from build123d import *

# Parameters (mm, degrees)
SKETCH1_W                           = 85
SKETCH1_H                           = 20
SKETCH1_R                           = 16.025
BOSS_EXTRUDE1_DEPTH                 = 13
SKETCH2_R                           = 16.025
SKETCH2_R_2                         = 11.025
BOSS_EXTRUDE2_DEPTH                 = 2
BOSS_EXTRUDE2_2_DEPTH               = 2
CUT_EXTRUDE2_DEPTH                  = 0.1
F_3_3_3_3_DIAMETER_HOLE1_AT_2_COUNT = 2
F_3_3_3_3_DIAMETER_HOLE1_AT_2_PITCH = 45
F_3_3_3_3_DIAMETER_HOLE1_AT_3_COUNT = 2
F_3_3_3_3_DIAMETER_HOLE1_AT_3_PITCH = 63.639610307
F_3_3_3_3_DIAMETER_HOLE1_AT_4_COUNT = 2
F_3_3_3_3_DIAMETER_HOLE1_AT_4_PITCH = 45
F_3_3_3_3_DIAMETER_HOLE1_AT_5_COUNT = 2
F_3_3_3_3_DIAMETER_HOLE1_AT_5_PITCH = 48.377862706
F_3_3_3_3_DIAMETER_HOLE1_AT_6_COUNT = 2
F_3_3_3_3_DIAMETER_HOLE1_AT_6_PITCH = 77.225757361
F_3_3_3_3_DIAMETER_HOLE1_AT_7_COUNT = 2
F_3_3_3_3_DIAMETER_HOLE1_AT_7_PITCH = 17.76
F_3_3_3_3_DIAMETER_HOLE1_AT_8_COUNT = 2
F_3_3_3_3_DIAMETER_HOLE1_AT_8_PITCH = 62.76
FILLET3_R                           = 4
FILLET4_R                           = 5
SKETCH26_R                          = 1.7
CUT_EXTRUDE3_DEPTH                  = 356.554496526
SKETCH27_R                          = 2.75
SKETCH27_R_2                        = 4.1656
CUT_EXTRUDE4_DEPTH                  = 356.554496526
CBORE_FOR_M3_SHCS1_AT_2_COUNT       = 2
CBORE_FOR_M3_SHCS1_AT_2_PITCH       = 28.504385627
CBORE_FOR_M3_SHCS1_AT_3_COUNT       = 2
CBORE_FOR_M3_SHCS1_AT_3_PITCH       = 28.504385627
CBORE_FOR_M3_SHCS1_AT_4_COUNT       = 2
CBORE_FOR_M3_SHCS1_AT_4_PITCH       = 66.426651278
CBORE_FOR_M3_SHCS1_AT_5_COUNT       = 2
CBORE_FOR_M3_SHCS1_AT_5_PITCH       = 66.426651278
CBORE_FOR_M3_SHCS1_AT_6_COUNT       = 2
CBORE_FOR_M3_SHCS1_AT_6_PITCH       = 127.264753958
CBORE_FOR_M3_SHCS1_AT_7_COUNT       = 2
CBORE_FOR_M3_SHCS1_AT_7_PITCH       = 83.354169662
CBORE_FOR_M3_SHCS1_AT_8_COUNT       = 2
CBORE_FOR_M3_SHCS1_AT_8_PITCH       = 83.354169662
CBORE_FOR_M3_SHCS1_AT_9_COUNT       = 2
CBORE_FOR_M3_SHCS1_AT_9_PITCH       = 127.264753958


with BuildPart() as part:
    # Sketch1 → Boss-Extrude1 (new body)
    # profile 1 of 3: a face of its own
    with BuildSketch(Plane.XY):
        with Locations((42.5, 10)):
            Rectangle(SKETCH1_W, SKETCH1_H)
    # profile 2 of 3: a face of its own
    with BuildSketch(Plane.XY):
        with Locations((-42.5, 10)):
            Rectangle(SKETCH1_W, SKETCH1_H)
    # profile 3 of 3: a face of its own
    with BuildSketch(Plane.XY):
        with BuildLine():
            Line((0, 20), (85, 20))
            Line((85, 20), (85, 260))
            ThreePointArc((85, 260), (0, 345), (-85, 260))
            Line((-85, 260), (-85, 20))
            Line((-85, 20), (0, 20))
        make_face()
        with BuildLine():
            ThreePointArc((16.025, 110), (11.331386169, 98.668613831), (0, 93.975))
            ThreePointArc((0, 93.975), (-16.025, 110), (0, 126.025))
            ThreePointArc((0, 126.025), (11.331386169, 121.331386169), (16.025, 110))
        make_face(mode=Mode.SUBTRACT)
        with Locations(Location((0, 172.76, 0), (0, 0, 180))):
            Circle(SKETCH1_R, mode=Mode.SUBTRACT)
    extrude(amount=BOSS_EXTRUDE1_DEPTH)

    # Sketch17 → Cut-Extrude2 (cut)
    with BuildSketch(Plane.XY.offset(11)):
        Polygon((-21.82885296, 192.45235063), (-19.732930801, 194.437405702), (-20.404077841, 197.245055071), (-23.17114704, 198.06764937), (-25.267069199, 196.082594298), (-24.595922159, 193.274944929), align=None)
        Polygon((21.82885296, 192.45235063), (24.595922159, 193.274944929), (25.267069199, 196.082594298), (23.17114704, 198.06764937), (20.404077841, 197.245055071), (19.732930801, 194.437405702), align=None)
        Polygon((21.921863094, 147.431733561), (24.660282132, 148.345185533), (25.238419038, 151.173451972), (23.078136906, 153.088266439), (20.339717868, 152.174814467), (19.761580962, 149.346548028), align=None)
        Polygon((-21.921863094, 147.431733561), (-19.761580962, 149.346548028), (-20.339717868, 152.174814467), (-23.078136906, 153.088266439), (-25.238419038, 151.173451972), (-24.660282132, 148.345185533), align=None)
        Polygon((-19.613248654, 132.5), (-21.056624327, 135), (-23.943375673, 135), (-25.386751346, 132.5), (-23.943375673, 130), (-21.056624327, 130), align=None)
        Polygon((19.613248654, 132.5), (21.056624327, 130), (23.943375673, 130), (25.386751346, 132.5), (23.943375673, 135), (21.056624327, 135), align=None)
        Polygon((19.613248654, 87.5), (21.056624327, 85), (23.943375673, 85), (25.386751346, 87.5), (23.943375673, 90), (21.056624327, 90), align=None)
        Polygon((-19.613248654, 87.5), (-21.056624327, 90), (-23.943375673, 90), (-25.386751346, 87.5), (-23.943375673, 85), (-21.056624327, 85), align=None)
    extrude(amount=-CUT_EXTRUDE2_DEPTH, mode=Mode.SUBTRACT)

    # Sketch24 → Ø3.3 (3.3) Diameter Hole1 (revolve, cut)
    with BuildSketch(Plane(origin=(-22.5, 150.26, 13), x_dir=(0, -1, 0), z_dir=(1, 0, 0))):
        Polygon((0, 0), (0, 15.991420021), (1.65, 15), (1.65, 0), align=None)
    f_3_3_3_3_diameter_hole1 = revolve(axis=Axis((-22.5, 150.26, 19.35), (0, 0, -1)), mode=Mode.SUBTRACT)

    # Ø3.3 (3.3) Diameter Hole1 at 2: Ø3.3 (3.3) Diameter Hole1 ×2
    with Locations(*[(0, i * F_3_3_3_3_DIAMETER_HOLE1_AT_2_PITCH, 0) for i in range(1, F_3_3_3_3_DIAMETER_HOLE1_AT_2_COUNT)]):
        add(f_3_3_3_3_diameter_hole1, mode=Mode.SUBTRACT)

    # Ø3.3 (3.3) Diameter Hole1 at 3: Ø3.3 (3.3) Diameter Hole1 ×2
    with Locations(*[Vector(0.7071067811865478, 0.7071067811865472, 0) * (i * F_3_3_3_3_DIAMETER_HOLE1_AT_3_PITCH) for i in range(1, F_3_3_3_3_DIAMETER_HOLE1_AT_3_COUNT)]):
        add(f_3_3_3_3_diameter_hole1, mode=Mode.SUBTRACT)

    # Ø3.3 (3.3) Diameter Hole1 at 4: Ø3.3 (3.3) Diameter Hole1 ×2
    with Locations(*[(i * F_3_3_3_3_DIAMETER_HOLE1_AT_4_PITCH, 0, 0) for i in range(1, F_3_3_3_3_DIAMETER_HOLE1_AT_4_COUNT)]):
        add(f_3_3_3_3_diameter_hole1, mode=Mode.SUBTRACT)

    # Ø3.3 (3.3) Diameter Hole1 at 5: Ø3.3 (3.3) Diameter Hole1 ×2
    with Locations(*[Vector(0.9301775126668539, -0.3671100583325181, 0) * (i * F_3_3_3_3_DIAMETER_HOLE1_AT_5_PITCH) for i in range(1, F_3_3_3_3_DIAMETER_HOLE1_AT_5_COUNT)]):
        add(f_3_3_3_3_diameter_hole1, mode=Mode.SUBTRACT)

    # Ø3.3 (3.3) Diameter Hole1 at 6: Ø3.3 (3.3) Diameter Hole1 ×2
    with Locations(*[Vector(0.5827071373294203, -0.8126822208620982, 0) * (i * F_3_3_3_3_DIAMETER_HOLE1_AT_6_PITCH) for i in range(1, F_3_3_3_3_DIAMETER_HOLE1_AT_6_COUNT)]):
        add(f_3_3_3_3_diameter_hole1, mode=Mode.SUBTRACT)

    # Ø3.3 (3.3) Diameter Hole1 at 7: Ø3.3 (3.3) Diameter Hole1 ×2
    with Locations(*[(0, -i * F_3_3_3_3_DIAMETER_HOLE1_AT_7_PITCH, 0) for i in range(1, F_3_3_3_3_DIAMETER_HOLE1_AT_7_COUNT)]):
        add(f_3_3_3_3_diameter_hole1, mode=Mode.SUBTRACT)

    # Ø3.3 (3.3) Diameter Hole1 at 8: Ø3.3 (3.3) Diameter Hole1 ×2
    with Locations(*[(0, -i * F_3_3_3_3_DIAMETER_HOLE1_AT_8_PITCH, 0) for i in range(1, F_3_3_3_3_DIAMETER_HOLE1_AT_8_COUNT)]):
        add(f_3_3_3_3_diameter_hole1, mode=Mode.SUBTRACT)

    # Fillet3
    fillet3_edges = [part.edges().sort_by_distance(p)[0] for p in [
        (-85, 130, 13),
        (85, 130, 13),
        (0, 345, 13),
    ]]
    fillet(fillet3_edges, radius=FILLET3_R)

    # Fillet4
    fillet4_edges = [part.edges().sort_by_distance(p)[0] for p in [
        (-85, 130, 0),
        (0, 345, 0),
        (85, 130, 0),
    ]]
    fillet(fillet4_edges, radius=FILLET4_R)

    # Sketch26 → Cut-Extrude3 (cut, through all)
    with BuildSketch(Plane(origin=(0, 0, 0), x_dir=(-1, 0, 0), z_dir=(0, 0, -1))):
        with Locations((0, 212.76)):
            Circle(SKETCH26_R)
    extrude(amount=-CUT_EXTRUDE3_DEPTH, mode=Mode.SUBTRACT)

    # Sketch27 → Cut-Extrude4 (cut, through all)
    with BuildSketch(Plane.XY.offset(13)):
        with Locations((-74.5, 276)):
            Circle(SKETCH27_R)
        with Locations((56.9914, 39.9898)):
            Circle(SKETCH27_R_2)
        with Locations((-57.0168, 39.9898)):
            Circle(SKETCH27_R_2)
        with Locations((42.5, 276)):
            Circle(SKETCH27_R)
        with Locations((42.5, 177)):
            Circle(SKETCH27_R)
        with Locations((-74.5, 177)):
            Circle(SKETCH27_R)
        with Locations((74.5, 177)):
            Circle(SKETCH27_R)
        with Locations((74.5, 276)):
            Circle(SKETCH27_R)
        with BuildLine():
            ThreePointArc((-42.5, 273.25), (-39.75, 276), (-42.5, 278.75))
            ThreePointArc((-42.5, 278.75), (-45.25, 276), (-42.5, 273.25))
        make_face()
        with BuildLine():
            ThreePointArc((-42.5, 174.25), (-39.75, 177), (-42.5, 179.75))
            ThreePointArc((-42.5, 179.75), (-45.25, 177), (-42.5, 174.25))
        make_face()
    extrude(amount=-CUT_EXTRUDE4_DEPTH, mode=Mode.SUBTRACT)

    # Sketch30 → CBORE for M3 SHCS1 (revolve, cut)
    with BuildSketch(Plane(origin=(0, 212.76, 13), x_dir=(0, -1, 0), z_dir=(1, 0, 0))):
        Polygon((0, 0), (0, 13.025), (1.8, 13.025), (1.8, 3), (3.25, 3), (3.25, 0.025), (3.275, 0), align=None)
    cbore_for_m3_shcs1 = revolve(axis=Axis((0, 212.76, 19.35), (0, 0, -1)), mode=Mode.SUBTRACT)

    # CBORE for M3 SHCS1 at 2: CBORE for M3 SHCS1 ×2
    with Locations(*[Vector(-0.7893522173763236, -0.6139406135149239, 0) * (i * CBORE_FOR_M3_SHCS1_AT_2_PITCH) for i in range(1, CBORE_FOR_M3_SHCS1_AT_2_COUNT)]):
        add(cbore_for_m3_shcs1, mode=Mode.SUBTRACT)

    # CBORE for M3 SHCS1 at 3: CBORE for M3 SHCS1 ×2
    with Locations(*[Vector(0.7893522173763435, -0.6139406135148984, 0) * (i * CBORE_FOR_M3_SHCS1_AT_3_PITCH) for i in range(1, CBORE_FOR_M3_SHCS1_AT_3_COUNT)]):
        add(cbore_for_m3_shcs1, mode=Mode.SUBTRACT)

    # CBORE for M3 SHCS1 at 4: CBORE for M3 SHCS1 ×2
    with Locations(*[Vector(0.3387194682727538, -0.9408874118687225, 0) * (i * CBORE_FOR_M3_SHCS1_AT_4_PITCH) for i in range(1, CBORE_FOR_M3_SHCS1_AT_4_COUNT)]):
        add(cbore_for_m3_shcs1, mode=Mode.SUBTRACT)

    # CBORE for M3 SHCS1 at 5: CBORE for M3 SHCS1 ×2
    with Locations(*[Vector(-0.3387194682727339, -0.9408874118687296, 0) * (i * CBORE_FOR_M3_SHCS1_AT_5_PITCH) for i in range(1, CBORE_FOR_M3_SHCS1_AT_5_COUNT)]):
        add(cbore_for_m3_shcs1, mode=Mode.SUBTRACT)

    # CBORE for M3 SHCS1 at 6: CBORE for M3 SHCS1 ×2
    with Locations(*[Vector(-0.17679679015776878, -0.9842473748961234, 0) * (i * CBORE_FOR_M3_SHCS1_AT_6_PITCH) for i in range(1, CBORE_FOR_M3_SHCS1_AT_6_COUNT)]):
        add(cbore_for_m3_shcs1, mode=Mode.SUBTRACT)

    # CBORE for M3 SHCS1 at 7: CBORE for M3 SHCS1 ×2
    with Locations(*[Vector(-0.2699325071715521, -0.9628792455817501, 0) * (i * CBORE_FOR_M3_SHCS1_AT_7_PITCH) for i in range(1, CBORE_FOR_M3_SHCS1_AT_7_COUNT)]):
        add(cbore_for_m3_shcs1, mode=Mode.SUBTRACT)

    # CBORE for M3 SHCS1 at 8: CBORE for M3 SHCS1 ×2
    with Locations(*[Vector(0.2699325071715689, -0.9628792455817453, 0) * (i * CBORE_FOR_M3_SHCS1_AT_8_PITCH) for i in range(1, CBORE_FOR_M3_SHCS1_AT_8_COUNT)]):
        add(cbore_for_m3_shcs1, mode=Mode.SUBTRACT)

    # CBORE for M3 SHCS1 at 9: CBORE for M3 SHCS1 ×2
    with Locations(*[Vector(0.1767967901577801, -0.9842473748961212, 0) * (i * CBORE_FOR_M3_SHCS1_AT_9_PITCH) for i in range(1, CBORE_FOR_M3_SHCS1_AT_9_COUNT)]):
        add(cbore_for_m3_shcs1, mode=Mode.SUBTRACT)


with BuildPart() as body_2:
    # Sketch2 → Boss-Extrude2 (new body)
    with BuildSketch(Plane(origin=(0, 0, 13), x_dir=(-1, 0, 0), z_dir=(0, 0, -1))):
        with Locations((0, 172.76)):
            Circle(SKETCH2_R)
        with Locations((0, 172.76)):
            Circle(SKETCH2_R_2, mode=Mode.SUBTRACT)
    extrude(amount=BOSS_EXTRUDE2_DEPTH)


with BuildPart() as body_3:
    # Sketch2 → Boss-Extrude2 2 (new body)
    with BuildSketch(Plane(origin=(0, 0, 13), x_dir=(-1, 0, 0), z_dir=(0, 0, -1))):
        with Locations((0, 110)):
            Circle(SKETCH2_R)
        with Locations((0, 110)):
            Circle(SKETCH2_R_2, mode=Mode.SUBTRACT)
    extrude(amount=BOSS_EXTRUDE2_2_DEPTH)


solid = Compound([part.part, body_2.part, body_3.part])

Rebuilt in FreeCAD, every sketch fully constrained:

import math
import FreeCAD as App
import Part
import Sketcher

V = App.Vector
Q = App.Units.Quantity


def edges_at(feature, points):
    """Names of the edges that pass closest to the given points."""
    edges = feature.Shape.Edges
    near = lambda p: min(range(len(edges)), key=lambda i: edges[i].distToShape(Part.Vertex(*p))[0])
    return sorted({f"Edge{near(p) + 1}" for p in points})

doc = App.newDocument("Part")
body = doc.addObject("PartDesign::Body", "Body")

sketch1 = doc.addObject("Sketcher::SketchObject", "Sketch")
body.addObject(sketch1)
sketch1.AttachmentSupport = (doc.XY_Plane, [""])
sketch1.MapMode = "FlatFace"
sketch1.addGeometry([
    Part.LineSegment(V(85, 0, 0), V(85, 260, 0)),
    Part.ArcOfCircle(Part.Circle(V(0, 260, 0), V(0, 0, 1), 85), math.radians(0), math.radians(180)),
    Part.LineSegment(V(-85, 260, 0), V(-85, 0, 0)),
    Part.LineSegment(V(-85, 0, 0), V(85, 0, 0)),
    Part.ArcOfCircle(Part.Circle(V(0, 110, 0), V(0, 0, 1), 16), math.radians(-90), math.radians(0)),
    Part.ArcOfCircle(Part.Circle(V(0, 110, 0), V(0, 0, 1), 16), math.radians(90), math.radians(270)),
    Part.ArcOfCircle(Part.Circle(V(0, 110, 0), V(0, 0, 1), 16), math.radians(0), math.radians(90)),
    Part.Circle(V(0, 173, 0), V(0, 0, 1), 16),
], False)
sketch1.addConstraint([
    Sketcher.Constraint("Tangent", 0, 2, 1, 1),
    Sketcher.Constraint("Tangent", 1, 2, 2, 1),
    Sketcher.Constraint("Coincident", 2, 2, 3, 1),
    Sketcher.Constraint("Coincident", 3, 2, 0, 1),
    Sketcher.Constraint("Tangent", 4, 1, 5, 2),
    Sketcher.Constraint("Tangent", 5, 1, 6, 2),
    Sketcher.Constraint("Tangent", 6, 1, 4, 2),
    Sketcher.Constraint("Vertical", 0),
    Sketcher.Constraint("Vertical", 2),
    Sketcher.Constraint("Horizontal", 3),
    Sketcher.Constraint("Equal", 6, 7),
    Sketcher.Constraint("Symmetric", 2, 2, 3, 2, -1, 1),
    Sketcher.Constraint("PointOnObject", 4, 3, -2),
    Sketcher.Constraint("PointOnObject", 7, 3, -2),
    Sketcher.Constraint("PointOnObject", 4, 1, -2),
    Sketcher.Constraint("PointOnObject", 5, 1, -2),
    Sketcher.Constraint("Horizontal", 5, 3, 6, 1),
    Sketcher.Constraint("Radius", 1, 85.0),
    Sketcher.Constraint("Diameter", 7, 32.05),
    Sketcher.Constraint("DistanceY", 0, 1, 0, 2, 260.0),
    Sketcher.Constraint("DistanceY", -1, 1, 4, 3, 110.0),
    Sketcher.Constraint("DistanceY", -1, 1, 7, 3, 172.76),
])
pad1 = doc.addObject("PartDesign::Pad", "Pad")
body.addObject(pad1)
pad1.Profile = sketch1
pad1.Length = 13

sketch2 = doc.addObject("Sketcher::SketchObject", "Sketch001")
body.addObject(sketch2)
sketch2.AttachmentSupport = (doc.XY_Plane, [""])
sketch2.MapMode = "FlatFace"
sketch2.AttachmentOffset = App.Placement(V(0, 0, 11), App.Rotation())
sketch2.addGeometry([
    Part.LineSegment(V(-21.8, 192.5, 0), V(-19.7, 194.4, 0)),
    Part.LineSegment(V(-19.7, 194.4, 0), V(-20.4, 197.2, 0)),
    Part.LineSegment(V(-20.4, 197.2, 0), V(-23.2, 198.1, 0)),
    Part.LineSegment(V(-23.2, 198.1, 0), V(-25.3, 196.1, 0)),
    Part.LineSegment(V(-25.3, 196.1, 0), V(-24.6, 193.3, 0)),
    Part.LineSegment(V(-24.6, 193.3, 0), V(-21.8, 192.5, 0)),
    Part.LineSegment(V(21.8, 192.5, 0), V(24.6, 193.3, 0)),
    Part.LineSegment(V(24.6, 193.3, 0), V(25.3, 196.1, 0)),
    Part.LineSegment(V(25.3, 196.1, 0), V(23.2, 198.1, 0)),
    Part.LineSegment(V(23.2, 198.1, 0), V(20.4, 197.2, 0)),
    Part.LineSegment(V(20.4, 197.2, 0), V(19.7, 194.4, 0)),
    Part.LineSegment(V(19.7, 194.4, 0), V(21.8, 192.5, 0)),
    Part.LineSegment(V(21.9, 147.4, 0), V(24.7, 148.3, 0)),
    Part.LineSegment(V(24.7, 148.3, 0), V(25.2, 151.2, 0)),
    Part.LineSegment(V(25.2, 151.2, 0), V(23.1, 153.1, 0)),
    Part.LineSegment(V(23.1, 153.1, 0), V(20.3, 152.2, 0)),
    Part.LineSegment(V(20.3, 152.2, 0), V(19.8, 149.3, 0)),
    Part.LineSegment(V(19.8, 149.3, 0), V(21.9, 147.4, 0)),
    Part.LineSegment(V(-21.9, 147.4, 0), V(-19.8, 149.3, 0)),
    Part.LineSegment(V(-19.8, 149.3, 0), V(-20.3, 152.2, 0)),
    Part.LineSegment(V(-20.3, 152.2, 0), V(-23.1, 153.1, 0)),
    Part.LineSegment(V(-23.1, 153.1, 0), V(-25.2, 151.2, 0)),
    Part.LineSegment(V(-25.2, 151.2, 0), V(-24.7, 148.3, 0)),
    Part.LineSegment(V(-24.7, 148.3, 0), V(-21.9, 147.4, 0)),
    Part.LineSegment(V(-19.6, 132.5, 0), V(-21.1, 135, 0)),
    Part.LineSegment(V(-21.1, 135, 0), V(-23.9, 135, 0)),
    Part.LineSegment(V(-23.9, 135, 0), V(-25.4, 132.5, 0)),
    Part.LineSegment(V(-25.4, 132.5, 0), V(-23.9, 130, 0)),
    Part.LineSegment(V(-23.9, 130, 0), V(-21.1, 130, 0)),
    Part.LineSegment(V(-21.1, 130, 0), V(-19.6, 132.5, 0)),
    Part.LineSegment(V(19.6, 132.5, 0), V(21.1, 130, 0)),
    Part.LineSegment(V(21.1, 130, 0), V(23.9, 130, 0)),
    Part.LineSegment(V(23.9, 130, 0), V(25.4, 132.5, 0)),
    Part.LineSegment(V(25.4, 132.5, 0), V(23.9, 135, 0)),
    Part.LineSegment(V(23.9, 135, 0), V(21.1, 135, 0)),
    Part.LineSegment(V(21.1, 135, 0), V(19.6, 132.5, 0)),
    Part.LineSegment(V(19.6, 87.5, 0), V(21.1, 85, 0)),
    Part.LineSegment(V(21.1, 85, 0), V(23.9, 85, 0)),
    Part.LineSegment(V(23.9, 85, 0), V(25.4, 87.5, 0)),
    Part.LineSegment(V(25.4, 87.5, 0), V(23.9, 90, 0)),
    Part.LineSegment(V(23.9, 90, 0), V(21.1, 90, 0)),
    Part.LineSegment(V(21.1, 90, 0), V(19.6, 87.5, 0)),
    Part.LineSegment(V(-19.6, 87.5, 0), V(-21.1, 90, 0)),
    Part.LineSegment(V(-21.1, 90, 0), V(-23.9, 90, 0)),
    Part.LineSegment(V(-23.9, 90, 0), V(-25.4, 87.5, 0)),
    Part.LineSegment(V(-25.4, 87.5, 0), V(-23.9, 85, 0)),
    Part.LineSegment(V(-23.9, 85, 0), V(-21.1, 85, 0)),
    Part.LineSegment(V(-21.1, 85, 0), V(-19.6, 87.5, 0)),
], False)
sketch2.addConstraint([
    Sketcher.Constraint("Coincident", 0, 2, 1, 1),
    Sketcher.Constraint("Coincident", 1, 2, 2, 1),
    Sketcher.Constraint("Coincident", 2, 2, 3, 1),
    Sketcher.Constraint("Coincident", 3, 2, 4, 1),
    Sketcher.Constraint("Coincident", 4, 2, 5, 1),
    Sketcher.Constraint("Coincident", 5, 2, 0, 1),
    Sketcher.Constraint("Coincident", 6, 2, 7, 1),
    Sketcher.Constraint("Coincident", 7, 2, 8, 1),
    Sketcher.Constraint("Coincident", 8, 2, 9, 1),
    Sketcher.Constraint("Coincident", 9, 2, 10, 1),
    Sketcher.Constraint("Coincident", 10, 2, 11, 1),
    Sketcher.Constraint("Coincident", 11, 2, 6, 1),
    Sketcher.Constraint("Coincident", 12, 2, 13, 1),
    Sketcher.Constraint("Coincident", 13, 2, 14, 1),
    Sketcher.Constraint("Coincident", 14, 2, 15, 1),
    Sketcher.Constraint("Coincident", 15, 2, 16, 1),
    Sketcher.Constraint("Coincident", 16, 2, 17, 1),
    Sketcher.Constraint("Coincident", 17, 2, 12, 1),
    Sketcher.Constraint("Coincident", 18, 2, 19, 1),
    Sketcher.Constraint("Coincident", 19, 2, 20, 1),
    Sketcher.Constraint("Coincident", 20, 2, 21, 1),
    Sketcher.Constraint("Coincident", 21, 2, 22, 1),
    Sketcher.Constraint("Coincident", 22, 2, 23, 1),
    Sketcher.Constraint("Coincident", 23, 2, 18, 1),
    Sketcher.Constraint("Coincident", 24, 2, 25, 1),
    Sketcher.Constraint("Coincident", 25, 2, 26, 1),
    Sketcher.Constraint("Coincident", 26, 2, 27, 1),
    Sketcher.Constraint("Coincident", 27, 2, 28, 1),
    Sketcher.Constraint("Coincident", 28, 2, 29, 1),
    Sketcher.Constraint("Coincident", 29, 2, 24, 1),
    Sketcher.Constraint("Coincident", 30, 2, 31, 1),
    Sketcher.Constraint("Coincident", 31, 2, 32, 1),
    Sketcher.Constraint("Coincident", 32, 2, 33, 1),
    Sketcher.Constraint("Coincident", 33, 2, 34, 1),
    Sketcher.Constraint("Coincident", 34, 2, 35, 1),
    Sketcher.Constraint("Coincident", 35, 2, 30, 1),
    Sketcher.Constraint("Coincident", 36, 2, 37, 1),
    Sketcher.Constraint("Coincident", 37, 2, 38, 1),
    Sketcher.Constraint("Coincident", 38, 2, 39, 1),
    Sketcher.Constraint("Coincident", 39, 2, 40, 1),
    Sketcher.Constraint("Coincident", 40, 2, 41, 1),
    Sketcher.Constraint("Coincident", 41, 2, 36, 1),
    Sketcher.Constraint("Coincident", 42, 2, 43, 1),
    Sketcher.Constraint("Coincident", 43, 2, 44, 1),
    Sketcher.Constraint("Coincident", 44, 2, 45, 1),
    Sketcher.Constraint("Coincident", 45, 2, 46, 1),
    Sketcher.Constraint("Coincident", 46, 2, 47, 1),
    Sketcher.Constraint("Coincident", 47, 2, 42, 1),
    Sketcher.Constraint("Horizontal", 25),
    Sketcher.Constraint("Horizontal", 28),
    Sketcher.Constraint("Horizontal", 31),
    Sketcher.Constraint("Horizontal", 34),
    Sketcher.Constraint("Horizontal", 37),
    Sketcher.Constraint("Horizontal", 40),
    Sketcher.Constraint("Horizontal", 43),
    Sketcher.Constraint("Horizontal", 46),
    Sketcher.Constraint("Symmetric", 4, 2, 6, 2, -2),
    Sketcher.Constraint("Symmetric", 3, 2, 7, 2, -2),
    Sketcher.Constraint("Symmetric", 2, 2, 8, 2, -2),
    Sketcher.Constraint("Symmetric", 1, 2, 9, 2, -2),
    Sketcher.Constraint("Symmetric", 0, 2, 10, 2, -2),
    Sketcher.Constraint("Symmetric", 5, 2, 11, 2, -2),
    Sketcher.Constraint("Symmetric", 16, 2, 18, 2, -2),
    Sketcher.Constraint("Symmetric", 15, 2, 19, 2, -2),
    Sketcher.Constraint("Symmetric", 14, 2, 20, 2, -2),
    Sketcher.Constraint("Symmetric", 13, 2, 21, 2, -2),
    Sketcher.Constraint("Symmetric", 12, 2, 22, 2, -2),
    Sketcher.Constraint("Symmetric", 17, 2, 23, 2, -2),
    Sketcher.Constraint("Symmetric", 28, 2, 30, 2, -2),
    Sketcher.Constraint("Symmetric", 26, 2, 32, 2, -2),
    Sketcher.Constraint("Symmetric", 25, 2, 33, 2, -2),
    Sketcher.Constraint("Symmetric", 29, 2, 35, 2, -2),
    Sketcher.Constraint("Symmetric", 40, 2, 42, 2, -2),
    Sketcher.Constraint("Symmetric", 38, 2, 44, 2, -2),
    Sketcher.Constraint("Symmetric", 37, 2, 45, 2, -2),
    Sketcher.Constraint("Symmetric", 41, 2, 47, 2, -2),
    Sketcher.Constraint("Parallel", 0, 3),
    Sketcher.Constraint("Parallel", 1, 4),
    Sketcher.Constraint("Parallel", 2, 5),
    Sketcher.Constraint("Parallel", 12, 15),
    Sketcher.Constraint("Parallel", 13, 16),
    Sketcher.Constraint("Parallel", 14, 17),
    Sketcher.Constraint("Parallel", 24, 27),
    Sketcher.Constraint("Parallel", 26, 29),
    Sketcher.Constraint("Parallel", 27, 30),
    Sketcher.Constraint("Parallel", 29, 32),
    Sketcher.Constraint("Parallel", 32, 35),
    Sketcher.Constraint("Parallel", 33, 36),
    Sketcher.Constraint("Parallel", 35, 38),
    Sketcher.Constraint("Parallel", 36, 39),
    Sketcher.Constraint("Parallel", 38, 41),
    Sketcher.Constraint("Parallel", 41, 44),
    Sketcher.Constraint("Parallel", 44, 47),
    Sketcher.Constraint("Horizontal", 26, 2, 29, 2),
    Sketcher.Constraint("Horizontal", 38, 2, 41, 2),
    Sketcher.Constraint("Vertical", 25, 2, 27, 2),
    Sketcher.Constraint("Vertical", 34, 2, 36, 2),
    Sketcher.Constraint("Vertical", 33, 2, 37, 2),
    Sketcher.Constraint("Vertical", 32, 2, 38, 2),
    Sketcher.Constraint("Vertical", 37, 2, 39, 2),
    Sketcher.Constraint("Equal", 0, 1),
    Sketcher.Constraint("Equal", 1, 2),
    Sketcher.Constraint("Equal", 2, 3),
    Sketcher.Constraint("Equal", 11, 12),
    Sketcher.Constraint("Equal", 12, 13),
    Sketcher.Constraint("Equal", 13, 14),
    Sketcher.Constraint("Equal", 14, 15),
    Sketcher.Constraint("Equal", 23, 24),
    Sketcher.Constraint("Angle", 24, Q("120 deg")),
    Sketcher.Constraint("DistanceY", -1, 1, 24, 2, 135.0),
    Sketcher.Constraint("DistanceY", -1, 1, 27, 2, 130.0),
    Sketcher.Constraint("DistanceY", -1, 1, 36, 2, 85.0),
    Sketcher.Constraint("DistanceX", 1, 2, 6, 2, 45.0),
    Sketcher.Constraint("DistanceX", 25, 2, 25, 1, 2.886751),
    Sketcher.Constraint("DistanceY", 5, 2, 2, 2, 5.615299),
    Sketcher.Constraint("DistanceY", 13, 2, 11, 2, 41.278899),
    Sketcher.Constraint("DistanceX", 15, 2, 13, 2, 4.898701),
    Sketcher.Constraint("DistanceX", 18, 2, 15, 2, 40.101299),
    Sketcher.Constraint("DistanceX", 0, 2, -1, 1, 19.732931),
    Sketcher.Constraint("DistanceY", -1, 1, 2, 2, 198.067649),
    Sketcher.Constraint("DistanceX", -1, 1, 13, 2, 25.238419),
    Sketcher.Constraint("DistanceY", -1, 1, 16, 2, 149.346548),
    Sketcher.Constraint("DistanceX", 26, 2, -1, 1, 25.386751),
    Sketcher.Constraint("DistanceY", 0, 2, 1, 2, 2.807649),
])
pocket1 = doc.addObject("PartDesign::Pocket", "Pocket")
body.addObject(pocket1)
pocket1.Profile = sketch2
pocket1.Length = 0.1

sketch3 = doc.addObject("Sketcher::SketchObject", "Sketch002")
body.addObject(sketch3)
sketch3.AttachmentSupport = (doc.YZ_Plane, [""])
sketch3.MapMode = "FlatFace"
sketch3.AttachmentOffset = App.Placement(V(0, 0, -22.5), App.Rotation())
sketch3.addGeometry([
    Part.LineSegment(V(150.3, -3, 0), V(150.3, 13, 0)),
    Part.LineSegment(V(150.3, 13, 0), V(148.6, 13, 0)),
    Part.LineSegment(V(148.6, 13, 0), V(148.6, -2, 0)),
    Part.LineSegment(V(148.6, -2, 0), V(150.3, -3, 0)),
], False)
sketch3.addGeometry(Part.LineSegment(V(150.3, 13, 0), V(150.3, -3, 0)), True)
sketch3.addConstraint([
    Sketcher.Constraint("Coincident", 0, 2, 1, 1),
    Sketcher.Constraint("Coincident", 1, 2, 2, 1),
    Sketcher.Constraint("Coincident", 2, 2, 3, 1),
    Sketcher.Constraint("Coincident", 3, 2, 0, 1),
    Sketcher.Constraint("Vertical", 0),
    Sketcher.Constraint("Horizontal", 1),
    Sketcher.Constraint("Vertical", 2),
    Sketcher.Constraint("Vertical", 4),
    Sketcher.Constraint("Coincident", 4, 1, 0, 2),
    Sketcher.Constraint("Equal", 0, 4),
    Sketcher.Constraint("DistanceY", 2, 2, 2, 1, 15.0),
    Sketcher.Constraint("Angle", 3, Q("-31 deg")),
    Sketcher.Constraint("DistanceY", -1, 1, 0, 2, 13.0),
    Sketcher.Constraint("DistanceX", 1, 2, 1, 1, 1.65),
    Sketcher.Constraint("DistanceX", -1, 1, 0, 2, 150.26),
])
groove = doc.addObject("PartDesign::Groove", "Groove")
body.addObject(groove)
groove.Profile = sketch3
groove.ReferenceAxis = (sketch3, ["Axis0"])
groove.Angle = 360
doc.recompute()

linearpattern = doc.addObject("PartDesign::LinearPattern", "LinearPattern")
body.addObject(linearpattern)
linearpattern.Originals = [groove]
linearpattern.Direction = (doc.Y_Axis, [""])
linearpattern.Mode = "offset"
linearpattern.Offset = 45
linearpattern.Occurrences = 2
body.Tip = linearpattern
doc.recompute()

datumline = doc.addObject("PartDesign::Line", "DatumLine")
body.addObject(datumline)
datumline.Placement = App.Placement(V(0, 0, 0), App.Rotation(V(0, 0, 1), V(0.707106781, 0.707106781, 0)))
linearpattern2 = doc.addObject("PartDesign::LinearPattern", "LinearPattern001")
body.addObject(linearpattern2)
linearpattern2.Originals = [groove]
linearpattern2.Direction = (datumline, [""])
linearpattern2.Mode = "offset"
linearpattern2.Offset = 63.63961
linearpattern2.Occurrences = 2
body.Tip = linearpattern2
doc.recompute()

linearpattern3 = doc.addObject("PartDesign::LinearPattern", "LinearPattern002")
body.addObject(linearpattern3)
linearpattern3.Originals = [groove]
linearpattern3.Direction = (doc.X_Axis, [""])
linearpattern3.Mode = "offset"
linearpattern3.Offset = 45
linearpattern3.Occurrences = 2
body.Tip = linearpattern3
doc.recompute()

datumline2 = doc.addObject("PartDesign::Line", "DatumLine001")
body.addObject(datumline2)
datumline2.Placement = App.Placement(V(0, 0, 0), App.Rotation(V(0, 0, 1), V(0.930177513, -0.367110058, 0)))
linearpattern4 = doc.addObject("PartDesign::LinearPattern", "LinearPattern003")
body.addObject(linearpattern4)
linearpattern4.Originals = [groove]
linearpattern4.Direction = (datumline2, [""])
linearpattern4.Mode = "offset"
linearpattern4.Offset = 48.377863
linearpattern4.Occurrences = 2
body.Tip = linearpattern4
doc.recompute()

datumline3 = doc.addObject("PartDesign::Line", "DatumLine002")
body.addObject(datumline3)
datumline3.Placement = App.Placement(V(0, 0, 0), App.Rotation(V(0, 0, 1), V(0.582707137, -0.812682221, 0)))
linearpattern5 = doc.addObject("PartDesign::LinearPattern", "LinearPattern004")
body.addObject(linearpattern5)
linearpattern5.Originals = [groove]
linearpattern5.Direction = (datumline3, [""])
linearpattern5.Mode = "offset"
linearpattern5.Offset = 77.225757
linearpattern5.Occurrences = 2
body.Tip = linearpattern5
doc.recompute()

linearpattern6 = doc.addObject("PartDesign::LinearPattern", "LinearPattern005")
body.addObject(linearpattern6)
linearpattern6.Originals = [groove]
linearpattern6.Direction = (doc.Y_Axis, [""])
linearpattern6.Mode = "offset"
linearpattern6.Offset = 17.76
linearpattern6.Occurrences = 2
linearpattern6.Reversed = True
body.Tip = linearpattern6
doc.recompute()

linearpattern7 = doc.addObject("PartDesign::LinearPattern", "LinearPattern006")
body.addObject(linearpattern7)
linearpattern7.Originals = [groove]
linearpattern7.Direction = (doc.Y_Axis, [""])
linearpattern7.Mode = "offset"
linearpattern7.Offset = 62.76
linearpattern7.Occurrences = 2
linearpattern7.Reversed = True
body.Tip = linearpattern7
doc.recompute()

fillet = doc.addObject("PartDesign::Fillet", "Fillet")
body.addObject(fillet)
fillet.Base = (linearpattern7, edges_at(linearpattern7, [(-85, 130, 13), (85, 130, 13), (0, 345, 13)]))
fillet.Radius = 4
doc.recompute()

fillet2 = doc.addObject("PartDesign::Fillet", "Fillet001")
body.addObject(fillet2)
fillet2.Base = (fillet, edges_at(fillet, [(-85, 130, 0), (0, 345, 0), (85, 130, 0)]))
fillet2.Radius = 5

sketch4 = doc.addObject("Sketcher::SketchObject", "Sketch003")
body.addObject(sketch4)
sketch4.AttachmentSupport = (doc.XY_Plane, [""])
sketch4.MapMode = "FlatFace"
sketch4.addGeometry(Part.Circle(V(0, 212.8, 0), V(0, 0, 1), 1.7), False)
sketch4.addConstraint([
    Sketcher.Constraint("PointOnObject", 0, 3, -2),
    Sketcher.Constraint("Diameter", 0, 3.4),
    Sketcher.Constraint("DistanceY", -1, 1, 0, 3, 212.76),
])
pocket2 = doc.addObject("PartDesign::Pocket", "Pocket001")
body.addObject(pocket2)
pocket2.Profile = sketch4
pocket2.Type = "ThroughAll"
pocket2.Reversed = True

sketch5 = doc.addObject("Sketcher::SketchObject", "Sketch004")
body.addObject(sketch5)
sketch5.AttachmentSupport = (doc.XY_Plane, [""])
sketch5.MapMode = "FlatFace"
sketch5.AttachmentOffset = App.Placement(V(0, 0, 13), App.Rotation())
sketch5.addGeometry([
    Part.Circle(V(-74.5, 276, 0), V(0, 0, 1), 2.8),
    Part.Circle(V(57, 40, 0), V(0, 0, 1), 4.2),
    Part.Circle(V(-57, 40, 0), V(0, 0, 1), 4.2),
    Part.Circle(V(42.5, 276, 0), V(0, 0, 1), 2.8),
    Part.Circle(V(42.5, 177, 0), V(0, 0, 1), 2.8),
    Part.Circle(V(-74.5, 177, 0), V(0, 0, 1), 2.8),
    Part.Circle(V(74.5, 177, 0), V(0, 0, 1), 2.8),
    Part.Circle(V(74.5, 276, 0), V(0, 0, 1), 2.8),
    Part.Circle(V(-42.5, 276, 0), V(0, 0, 1), 2.8),
    Part.Circle(V(-42.5, 177, 0), V(0, 0, 1), 2.8),
], False)
sketch5.addConstraint([
    Sketcher.Constraint("Equal", 1, 2),
    Sketcher.Constraint("Equal", 0, 3),
    Sketcher.Constraint("Equal", 3, 4),
    Sketcher.Constraint("Equal", 4, 5),
    Sketcher.Constraint("Equal", 5, 6),
    Sketcher.Constraint("Equal", 6, 7),
    Sketcher.Constraint("Equal", 7, 8),
    Sketcher.Constraint("Equal", 8, 9),
    Sketcher.Constraint("Symmetric", 5, 3, 6, 3, -2),
    Sketcher.Constraint("Symmetric", 0, 3, 7, 3, -2),
    Sketcher.Constraint("Symmetric", 3, 3, 8, 3, -2),
    Sketcher.Constraint("Symmetric", 4, 3, 9, 3, -2),
    Sketcher.Constraint("Horizontal", 1, 3, 2, 3),
    Sketcher.Constraint("Horizontal", 0, 3, 3, 3),
    Sketcher.Constraint("Horizontal", 4, 3, 5, 3),
    Sketcher.Constraint("Vertical", 3, 3, 4, 3),
    Sketcher.Constraint("Vertical", 0, 3, 5, 3),
    Sketcher.Constraint("Diameter", 0, 5.5),
    Sketcher.Constraint("DistanceY", -1, 1, 0, 3, 276.0),
    Sketcher.Constraint("DistanceY", -1, 1, 4, 3, 177.0),
    Sketcher.Constraint("DistanceX", 0, 3, 3, 3, 117.0),
    Sketcher.Constraint("DistanceX", 4, 3, 6, 3, 32.0),
    Sketcher.Constraint("Diameter", 1, 8.3312),
    Sketcher.Constraint("DistanceX", -1, 1, 1, 3, 56.9914),
    Sketcher.Constraint("DistanceY", -1, 1, 1, 3, 39.9898),
    Sketcher.Constraint("DistanceX", 2, 3, -1, 1, 57.0168),
])
pocket3 = doc.addObject("PartDesign::Pocket", "Pocket002")
body.addObject(pocket3)
pocket3.Profile = sketch5
pocket3.Type = "ThroughAll"

sketch6 = doc.addObject("Sketcher::SketchObject", "Sketch005")
body.addObject(sketch6)
sketch6.AttachmentSupport = (doc.YZ_Plane, [""])
sketch6.MapMode = "FlatFace"
sketch6.addGeometry([
    Part.LineSegment(V(212.76, -0.025, 0), V(212.76, 13, 0)),
    Part.LineSegment(V(212.76, 13, 0), V(209.485, 13, 0)),
    Part.LineSegment(V(209.485, 13, 0), V(209.51, 12.975, 0)),
    Part.LineSegment(V(209.51, 12.975, 0), V(209.51, 10, 0)),
    Part.LineSegment(V(209.51, 10, 0), V(210.96, 10, 0)),
    Part.LineSegment(V(210.96, 10, 0), V(210.96, -0.025, 0)),
    Part.LineSegment(V(210.96, -0.025, 0), V(212.76, -0.025, 0)),
], False)
sketch6.addGeometry(Part.LineSegment(V(212.76, 13, 0), V(212.76, -0.025, 0)), True)
sketch6.addConstraint([
    Sketcher.Constraint("Coincident", 0, 2, 1, 1),
    Sketcher.Constraint("Coincident", 1, 2, 2, 1),
    Sketcher.Constraint("Coincident", 2, 2, 3, 1),
    Sketcher.Constraint("Coincident", 3, 2, 4, 1),
    Sketcher.Constraint("Coincident", 4, 2, 5, 1),
    Sketcher.Constraint("Coincident", 5, 2, 6, 1),
    Sketcher.Constraint("Coincident", 6, 2, 0, 1),
    Sketcher.Constraint("Vertical", 0),
    Sketcher.Constraint("Horizontal", 1),
    Sketcher.Constraint("Vertical", 3),
    Sketcher.Constraint("Horizontal", 4),
    Sketcher.Constraint("Vertical", 5),
    Sketcher.Constraint("Horizontal", 6),
    Sketcher.Constraint("Vertical", 7),
    Sketcher.Constraint("Coincident", 7, 1, 0, 2),
    Sketcher.Constraint("Horizontal", 5, 2, 7, 2),
    Sketcher.Constraint("Angle", 2, Q("-45 deg")),
    Sketcher.Constraint("DistanceX", 6, 1, 6, 2, 1.8),
    Sketcher.Constraint("DistanceY", -1, 1, 0, 2, 13.0),
    Sketcher.Constraint("DistanceY", -1, 1, 3, 2, 10.0),
    Sketcher.Constraint("DistanceY", 5, 2, 2, 2, 13.0),
    Sketcher.Constraint("DistanceX", 4, 1, 4, 2, 1.45),
    Sketcher.Constraint("DistanceX", 1, 2, 1, 1, 3.275),
    Sketcher.Constraint("DistanceX", -1, 1, 0, 2, 212.76),
])
groove2 = doc.addObject("PartDesign::Groove", "Groove001")
body.addObject(groove2)
groove2.Profile = sketch6
groove2.ReferenceAxis = (sketch6, ["Axis0"])
groove2.Angle = 360
doc.recompute()

datumline4 = doc.addObject("PartDesign::Line", "DatumLine003")
body.addObject(datumline4)
datumline4.Placement = App.Placement(V(0, 0, 0), App.Rotation(V(0, 0, 1), V(-0.789352217, -0.613940614, 0)))
linearpattern8 = doc.addObject("PartDesign::LinearPattern", "LinearPattern007")
body.addObject(linearpattern8)
linearpattern8.Originals = [groove2]
linearpattern8.Direction = (datumline4, [""])
linearpattern8.Mode = "offset"
linearpattern8.Offset = 28.504386
linearpattern8.Occurrences = 2
body.Tip = linearpattern8
doc.recompute()

datumline5 = doc.addObject("PartDesign::Line", "DatumLine004")
body.addObject(datumline5)
datumline5.Placement = App.Placement(V(0, 0, 0), App.Rotation(V(0, 0, 1), V(0.789352217, -0.613940614, 0)))
linearpattern9 = doc.addObject("PartDesign::LinearPattern", "LinearPattern008")
body.addObject(linearpattern9)
linearpattern9.Originals = [groove2]
linearpattern9.Direction = (datumline5, [""])
linearpattern9.Mode = "offset"
linearpattern9.Offset = 28.504386
linearpattern9.Occurrences = 2
body.Tip = linearpattern9
doc.recompute()

datumline6 = doc.addObject("PartDesign::Line", "DatumLine005")
body.addObject(datumline6)
datumline6.Placement = App.Placement(V(0, 0, 0), App.Rotation(V(0, 0, 1), V(0.338719468, -0.940887412, 0)))
linearpattern10 = doc.addObject("PartDesign::LinearPattern", "LinearPattern009")
body.addObject(linearpattern10)
linearpattern10.Originals = [groove2]
linearpattern10.Direction = (datumline6, [""])
linearpattern10.Mode = "offset"
linearpattern10.Offset = 66.426651
linearpattern10.Occurrences = 2
body.Tip = linearpattern10
doc.recompute()

datumline7 = doc.addObject("PartDesign::Line", "DatumLine006")
body.addObject(datumline7)
datumline7.Placement = App.Placement(V(0, 0, 0), App.Rotation(V(0, 0, 1), V(-0.338719468, -0.940887412, 0)))
linearpattern11 = doc.addObject("PartDesign::LinearPattern", "LinearPattern010")
body.addObject(linearpattern11)
linearpattern11.Originals = [groove2]
linearpattern11.Direction = (datumline7, [""])
linearpattern11.Mode = "offset"
linearpattern11.Offset = 66.426651
linearpattern11.Occurrences = 2
body.Tip = linearpattern11
doc.recompute()

datumline8 = doc.addObject("PartDesign::Line", "DatumLine007")
body.addObject(datumline8)
datumline8.Placement = App.Placement(V(0, 0, 0), App.Rotation(V(0, 0, 1), V(-0.17679679, -0.984247375, 0)))
linearpattern12 = doc.addObject("PartDesign::LinearPattern", "LinearPattern011")
body.addObject(linearpattern12)
linearpattern12.Originals = [groove2]
linearpattern12.Direction = (datumline8, [""])
linearpattern12.Mode = "offset"
linearpattern12.Offset = 127.264754
linearpattern12.Occurrences = 2
body.Tip = linearpattern12
doc.recompute()

datumline9 = doc.addObject("PartDesign::Line", "DatumLine008")
body.addObject(datumline9)
datumline9.Placement = App.Placement(V(0, 0, 0), App.Rotation(V(0, 0, 1), V(-0.269932507, -0.962879246, 0)))
linearpattern13 = doc.addObject("PartDesign::LinearPattern", "LinearPattern012")
body.addObject(linearpattern13)
linearpattern13.Originals = [groove2]
linearpattern13.Direction = (datumline9, [""])
linearpattern13.Mode = "offset"
linearpattern13.Offset = 83.35417
linearpattern13.Occurrences = 2
body.Tip = linearpattern13
doc.recompute()

datumline10 = doc.addObject("PartDesign::Line", "DatumLine009")
body.addObject(datumline10)
datumline10.Placement = App.Placement(V(0, 0, 0), App.Rotation(V(0, 0, 1), V(0.269932507, -0.962879246, 0)))
linearpattern14 = doc.addObject("PartDesign::LinearPattern", "LinearPattern013")
body.addObject(linearpattern14)
linearpattern14.Originals = [groove2]
linearpattern14.Direction = (datumline10, [""])
linearpattern14.Mode = "offset"
linearpattern14.Offset = 83.35417
linearpattern14.Occurrences = 2
body.Tip = linearpattern14
doc.recompute()

datumline11 = doc.addObject("PartDesign::Line", "DatumLine010")
body.addObject(datumline11)
datumline11.Placement = App.Placement(V(0, 0, 0), App.Rotation(V(0, 0, 1), V(0.17679679, -0.984247375, 0)))
linearpattern15 = doc.addObject("PartDesign::LinearPattern", "LinearPattern014")
body.addObject(linearpattern15)
linearpattern15.Originals = [groove2]
linearpattern15.Direction = (datumline11, [""])
linearpattern15.Mode = "offset"
linearpattern15.Offset = 127.264754
linearpattern15.Occurrences = 2
body.Tip = linearpattern15
body2 = doc.addObject("PartDesign::Body", "Body001")

sketch7 = doc.addObject("Sketcher::SketchObject", "Sketch006")
body2.addObject(sketch7)
sketch7.AttachmentSupport = (doc.getObject("XY_Plane001"), [""])
sketch7.MapMode = "FlatFace"
sketch7.AttachmentOffset = App.Placement(V(0, 0, 13), App.Rotation())
sketch7.addGeometry([
    Part.Circle(V(0, 173, 0), V(0, 0, 1), 16),
    Part.Circle(V(0, 173, 0), V(0, 0, 1), 11),
], False)
sketch7.addConstraint([
    Sketcher.Constraint("Coincident", 1, 3, 0, 3),
    Sketcher.Constraint("PointOnObject", 0, 3, -2),
    Sketcher.Constraint("Diameter", 0, 32.05),
    Sketcher.Constraint("Diameter", 1, 22.05),
    Sketcher.Constraint("DistanceY", -1, 1, 0, 3, 172.76),
])
pad2 = doc.addObject("PartDesign::Pad", "Pad001")
body2.addObject(pad2)
pad2.Profile = sketch7
pad2.Length = 2
pad2.Reversed = True
body3 = doc.addObject("PartDesign::Body", "Body002")

sketch8 = doc.addObject("Sketcher::SketchObject", "Sketch007")
body3.addObject(sketch8)
sketch8.AttachmentSupport = (doc.getObject("XY_Plane002"), [""])
sketch8.MapMode = "FlatFace"
sketch8.AttachmentOffset = App.Placement(V(0, 0, 13), App.Rotation())
sketch8.addGeometry([
    Part.Circle(V(0, 110, 0), V(0, 0, 1), 16),
    Part.Circle(V(0, 110, 0), V(0, 0, 1), 11),
], False)
sketch8.addConstraint([
    Sketcher.Constraint("Coincident", 1, 3, 0, 3),
    Sketcher.Constraint("PointOnObject", 0, 3, -2),
    Sketcher.Constraint("Diameter", 0, 32.05),
    Sketcher.Constraint("Diameter", 1, 22.05),
    Sketcher.Constraint("DistanceY", -1, 1, 0, 3, 110.0),
])
pad3 = doc.addObject("PartDesign::Pad", "Pad002")
body3.addObject(pad3)
pad3.Profile = sketch8
pad3.Length = 2
pad3.Reversed = True

doc.recompute()
